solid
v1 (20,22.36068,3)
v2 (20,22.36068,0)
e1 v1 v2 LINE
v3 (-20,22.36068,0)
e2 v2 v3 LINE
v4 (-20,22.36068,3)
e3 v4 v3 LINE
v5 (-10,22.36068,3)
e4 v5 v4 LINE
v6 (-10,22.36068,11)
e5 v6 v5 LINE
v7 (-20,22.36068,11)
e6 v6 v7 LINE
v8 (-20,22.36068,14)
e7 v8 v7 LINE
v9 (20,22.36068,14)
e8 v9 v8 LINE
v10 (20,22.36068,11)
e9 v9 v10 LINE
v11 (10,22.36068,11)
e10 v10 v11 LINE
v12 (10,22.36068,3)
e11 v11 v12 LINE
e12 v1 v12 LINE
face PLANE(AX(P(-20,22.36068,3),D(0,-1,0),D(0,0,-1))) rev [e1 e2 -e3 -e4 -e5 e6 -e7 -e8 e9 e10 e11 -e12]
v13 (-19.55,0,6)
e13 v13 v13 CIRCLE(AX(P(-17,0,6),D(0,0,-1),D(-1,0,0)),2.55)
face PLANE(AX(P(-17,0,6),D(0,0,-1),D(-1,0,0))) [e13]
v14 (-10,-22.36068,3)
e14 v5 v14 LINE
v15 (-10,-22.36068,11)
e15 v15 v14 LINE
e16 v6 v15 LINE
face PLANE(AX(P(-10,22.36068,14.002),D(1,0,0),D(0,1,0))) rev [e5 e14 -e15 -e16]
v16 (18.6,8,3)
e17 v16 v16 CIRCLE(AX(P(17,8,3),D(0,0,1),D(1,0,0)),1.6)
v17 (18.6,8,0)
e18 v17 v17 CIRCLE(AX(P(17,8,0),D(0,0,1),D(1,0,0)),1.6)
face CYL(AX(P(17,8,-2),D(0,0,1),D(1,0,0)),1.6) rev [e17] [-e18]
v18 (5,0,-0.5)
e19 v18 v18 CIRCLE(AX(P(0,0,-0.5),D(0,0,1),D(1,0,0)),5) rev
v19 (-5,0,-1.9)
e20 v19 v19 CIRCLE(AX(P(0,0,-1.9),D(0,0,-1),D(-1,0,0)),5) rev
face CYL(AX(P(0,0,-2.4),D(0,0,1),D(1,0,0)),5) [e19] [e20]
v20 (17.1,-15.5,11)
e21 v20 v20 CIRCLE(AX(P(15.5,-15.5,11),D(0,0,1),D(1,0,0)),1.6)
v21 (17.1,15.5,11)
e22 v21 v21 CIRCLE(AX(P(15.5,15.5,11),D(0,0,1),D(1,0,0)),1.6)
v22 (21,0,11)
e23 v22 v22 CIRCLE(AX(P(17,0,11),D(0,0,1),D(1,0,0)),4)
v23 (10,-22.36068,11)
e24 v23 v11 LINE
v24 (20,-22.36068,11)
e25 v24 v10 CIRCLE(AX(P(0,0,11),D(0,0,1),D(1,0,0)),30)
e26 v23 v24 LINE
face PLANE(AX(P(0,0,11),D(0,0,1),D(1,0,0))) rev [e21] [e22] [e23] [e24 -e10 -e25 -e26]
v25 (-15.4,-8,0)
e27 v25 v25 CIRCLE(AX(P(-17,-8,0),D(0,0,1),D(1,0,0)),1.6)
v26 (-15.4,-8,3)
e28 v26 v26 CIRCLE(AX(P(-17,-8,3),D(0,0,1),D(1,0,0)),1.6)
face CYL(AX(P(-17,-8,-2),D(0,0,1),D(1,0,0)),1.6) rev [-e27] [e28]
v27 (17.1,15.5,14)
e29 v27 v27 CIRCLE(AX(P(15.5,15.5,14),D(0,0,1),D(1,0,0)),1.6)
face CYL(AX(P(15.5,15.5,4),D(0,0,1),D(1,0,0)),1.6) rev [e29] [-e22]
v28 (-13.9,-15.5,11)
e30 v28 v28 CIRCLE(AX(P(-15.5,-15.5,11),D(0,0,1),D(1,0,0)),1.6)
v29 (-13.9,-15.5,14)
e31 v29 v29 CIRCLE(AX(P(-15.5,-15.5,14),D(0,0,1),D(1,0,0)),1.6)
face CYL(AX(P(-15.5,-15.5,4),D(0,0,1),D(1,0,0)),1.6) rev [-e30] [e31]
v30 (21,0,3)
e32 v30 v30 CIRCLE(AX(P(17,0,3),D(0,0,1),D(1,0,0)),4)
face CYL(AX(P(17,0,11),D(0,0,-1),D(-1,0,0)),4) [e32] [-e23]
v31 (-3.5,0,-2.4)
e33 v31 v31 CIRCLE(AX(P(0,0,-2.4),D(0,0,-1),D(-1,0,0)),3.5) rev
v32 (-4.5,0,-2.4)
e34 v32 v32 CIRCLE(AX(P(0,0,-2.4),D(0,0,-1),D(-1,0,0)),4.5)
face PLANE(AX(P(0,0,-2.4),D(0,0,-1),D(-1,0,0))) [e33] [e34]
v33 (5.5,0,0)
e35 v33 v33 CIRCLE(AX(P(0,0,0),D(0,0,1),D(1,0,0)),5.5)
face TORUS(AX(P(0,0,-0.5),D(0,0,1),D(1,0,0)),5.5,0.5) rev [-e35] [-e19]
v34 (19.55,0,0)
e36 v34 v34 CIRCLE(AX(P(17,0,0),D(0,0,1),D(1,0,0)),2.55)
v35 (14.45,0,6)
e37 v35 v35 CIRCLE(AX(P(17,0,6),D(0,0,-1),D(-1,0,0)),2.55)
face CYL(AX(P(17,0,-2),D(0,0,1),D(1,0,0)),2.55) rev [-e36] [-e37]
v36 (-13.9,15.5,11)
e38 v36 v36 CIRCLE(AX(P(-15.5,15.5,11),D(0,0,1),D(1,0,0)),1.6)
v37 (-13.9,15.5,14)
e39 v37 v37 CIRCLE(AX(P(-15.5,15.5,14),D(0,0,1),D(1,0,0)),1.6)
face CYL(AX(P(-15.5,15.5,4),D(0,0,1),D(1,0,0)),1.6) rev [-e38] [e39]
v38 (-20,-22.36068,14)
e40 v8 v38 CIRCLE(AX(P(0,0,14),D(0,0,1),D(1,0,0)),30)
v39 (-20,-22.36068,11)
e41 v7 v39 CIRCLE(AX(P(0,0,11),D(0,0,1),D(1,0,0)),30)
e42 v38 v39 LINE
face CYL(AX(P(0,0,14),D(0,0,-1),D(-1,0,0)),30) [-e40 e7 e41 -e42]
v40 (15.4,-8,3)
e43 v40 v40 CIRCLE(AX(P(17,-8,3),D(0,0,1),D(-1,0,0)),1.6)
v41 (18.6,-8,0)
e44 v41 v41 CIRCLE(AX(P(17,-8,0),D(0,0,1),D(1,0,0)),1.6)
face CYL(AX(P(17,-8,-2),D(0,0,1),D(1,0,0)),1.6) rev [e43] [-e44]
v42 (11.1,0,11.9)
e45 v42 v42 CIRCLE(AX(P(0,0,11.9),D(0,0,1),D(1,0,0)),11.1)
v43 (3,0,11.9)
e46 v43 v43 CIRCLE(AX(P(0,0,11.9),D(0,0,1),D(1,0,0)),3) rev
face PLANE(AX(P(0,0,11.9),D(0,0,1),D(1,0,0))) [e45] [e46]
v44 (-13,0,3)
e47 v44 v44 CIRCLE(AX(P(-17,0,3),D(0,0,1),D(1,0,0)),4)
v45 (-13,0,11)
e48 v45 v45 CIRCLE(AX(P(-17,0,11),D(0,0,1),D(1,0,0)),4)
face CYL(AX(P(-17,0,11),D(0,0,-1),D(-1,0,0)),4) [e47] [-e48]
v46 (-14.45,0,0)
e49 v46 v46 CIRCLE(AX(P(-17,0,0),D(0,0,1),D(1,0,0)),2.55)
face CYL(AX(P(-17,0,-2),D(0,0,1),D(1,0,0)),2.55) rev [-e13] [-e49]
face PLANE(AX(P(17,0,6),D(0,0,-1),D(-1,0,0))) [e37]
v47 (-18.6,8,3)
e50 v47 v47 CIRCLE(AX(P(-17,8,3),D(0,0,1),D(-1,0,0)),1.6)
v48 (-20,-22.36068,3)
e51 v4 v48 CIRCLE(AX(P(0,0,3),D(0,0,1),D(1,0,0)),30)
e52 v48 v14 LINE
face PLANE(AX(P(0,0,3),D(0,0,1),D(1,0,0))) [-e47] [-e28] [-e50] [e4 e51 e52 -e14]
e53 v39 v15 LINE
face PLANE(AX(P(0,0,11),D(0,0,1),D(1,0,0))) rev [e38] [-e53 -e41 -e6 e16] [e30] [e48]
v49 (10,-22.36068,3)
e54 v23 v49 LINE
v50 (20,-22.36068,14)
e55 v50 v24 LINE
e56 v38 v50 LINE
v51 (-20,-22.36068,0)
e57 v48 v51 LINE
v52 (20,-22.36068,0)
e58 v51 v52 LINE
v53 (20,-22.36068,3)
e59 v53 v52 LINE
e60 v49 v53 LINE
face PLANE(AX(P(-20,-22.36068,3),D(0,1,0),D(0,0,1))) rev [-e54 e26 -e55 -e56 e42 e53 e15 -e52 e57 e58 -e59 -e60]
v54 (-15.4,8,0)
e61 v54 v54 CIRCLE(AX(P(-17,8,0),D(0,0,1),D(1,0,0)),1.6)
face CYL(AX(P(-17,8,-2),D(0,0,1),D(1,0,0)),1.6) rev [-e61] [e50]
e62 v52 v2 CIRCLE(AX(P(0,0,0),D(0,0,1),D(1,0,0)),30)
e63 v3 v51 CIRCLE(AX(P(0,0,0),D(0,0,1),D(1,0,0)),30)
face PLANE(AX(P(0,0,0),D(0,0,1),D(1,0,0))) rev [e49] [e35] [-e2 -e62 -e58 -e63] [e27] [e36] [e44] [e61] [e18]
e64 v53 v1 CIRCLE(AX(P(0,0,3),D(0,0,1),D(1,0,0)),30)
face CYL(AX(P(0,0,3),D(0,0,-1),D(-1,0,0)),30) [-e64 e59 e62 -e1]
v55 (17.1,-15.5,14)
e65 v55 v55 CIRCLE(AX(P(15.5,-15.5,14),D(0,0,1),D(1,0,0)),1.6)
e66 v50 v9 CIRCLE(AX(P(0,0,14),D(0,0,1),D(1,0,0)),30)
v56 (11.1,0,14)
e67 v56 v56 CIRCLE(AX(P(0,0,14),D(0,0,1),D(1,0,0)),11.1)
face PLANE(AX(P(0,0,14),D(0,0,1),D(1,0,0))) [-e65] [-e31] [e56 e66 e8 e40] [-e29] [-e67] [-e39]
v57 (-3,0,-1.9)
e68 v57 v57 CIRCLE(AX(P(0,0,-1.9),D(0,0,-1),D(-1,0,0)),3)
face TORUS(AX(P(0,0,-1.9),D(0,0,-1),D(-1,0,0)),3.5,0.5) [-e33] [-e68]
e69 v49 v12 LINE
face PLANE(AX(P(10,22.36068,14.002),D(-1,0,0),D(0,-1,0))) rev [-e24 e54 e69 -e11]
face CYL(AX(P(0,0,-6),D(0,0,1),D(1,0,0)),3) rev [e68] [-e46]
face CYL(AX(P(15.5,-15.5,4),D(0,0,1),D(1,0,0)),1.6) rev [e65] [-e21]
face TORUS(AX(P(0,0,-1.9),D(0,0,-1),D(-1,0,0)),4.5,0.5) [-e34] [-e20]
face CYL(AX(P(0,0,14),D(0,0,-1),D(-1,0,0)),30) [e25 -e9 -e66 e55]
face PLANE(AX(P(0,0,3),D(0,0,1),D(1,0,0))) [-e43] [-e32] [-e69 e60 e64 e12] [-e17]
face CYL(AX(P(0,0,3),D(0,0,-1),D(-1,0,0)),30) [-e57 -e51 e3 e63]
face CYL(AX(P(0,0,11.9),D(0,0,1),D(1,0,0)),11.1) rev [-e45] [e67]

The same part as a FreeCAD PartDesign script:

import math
import FreeCAD as App
import Part
import Sketcher
Q = App.Units.Quantity


def edges_at(feature, points):
    """Names of the edges that pass closest to the given points."""
    edges = feature.Shape.Edges
    near = lambda p: min(range(len(edges)), key=lambda i: edges[i].distToShape(Part.Vertex(*p))[0])
    return sorted({f"Edge{near(p) + 1}" for p in points})

doc = App.newDocument("Part")
params = doc.addObject("Spreadsheet::Sheet", "Params")
for row, (alias, value) in enumerate([
    ("sketch1_radius", "30 mm"),
    ("sketch1_width", "40 mm"),
    ("pad1_length", "3 mm"),
    ("sketch2_diameter", "3.2 mm"),
    ("sketch2_diameter2", "5.1 mm"),
    ("pocket1_length", "5 mm"),
    ("sketch3_diameter", "8 mm"),
    ("sketch3_diameter2", "5.1 mm"),
    ("pad2_length", "8 mm"),
    ("sketch4_radius", "30 mm"),
    ("sketch4_width", "40 mm"),
    ("pad3_length", "3 mm"),
    ("sketch5_width", "20 mm"),
    ("sketch6_diameter", "3.2 mm"),
    ("pocket2_length", "10 mm"),
    ("sketch7_diameter", "6 mm"),
    ("pocket3_length", "20 mm"),
    ("sketch8_diameter", "22.2 mm"),
    ("pocket4_length", "2.1 mm"),
    ("sketch9_diameter", "10 mm"),
    ("sketch9_diameter2", "6 mm"),
    ("pad5_length", "2.4 mm"),
    ("fillet_radius", "0.5 mm"),
    ("sketch10_diameter", "5.1 mm"),
    ("pad6_length", "5 mm"),
], start=1):
    params.set(f"A{row}", alias)
    params.set(f"B{row}", "=" + value)
    params.setAlias(f"B{row}", alias)

body = doc.addObject("PartDesign::Body", "Body")

sketch1 = doc.addObject("Sketcher::SketchObject", "Sketch")
body.addObject(sketch1)
sketch1.AttachmentSupport = (doc.XY_Plane, [""])
sketch1.MapMode = "FlatFace"
sketch1.addGeometry(Part.LineSegment(App.Vector(20, 22.36068, 0), App.Vector(-20, 22.36068, 0)), False)
sketch1.addGeometry(Part.ArcOfCircle(Part.Circle(App.Vector(0, 0, 0), App.Vector(0, 0, 1), 30), math.radians(131.810315), math.radians(228.189685)), False)
sketch1.addGeometry(Part.LineSegment(App.Vector(-20, -22.36068, 0), App.Vector(20, -22.36068, 0)), False)
sketch1.addGeometry(Part.ArcOfCircle(Part.Circle(App.Vector(0, 0, 0), App.Vector(0, 0, 1), 30), math.radians(-48.189685), math.radians(48.189685)), False)
sketch1.addConstraint(Sketcher.Constraint("Coincident", 0, 2, 1, 1))
sketch1.addConstraint(Sketcher.Constraint("Coincident", 1, 2, 2, 1))
sketch1.addConstraint(Sketcher.Constraint("Coincident", 2, 2, 3, 1))
sketch1.addConstraint(Sketcher.Constraint("Coincident", 3, 2, 0, 1))
sketch1.addConstraint(Sketcher.Constraint("Horizontal", 0))
sketch1.addConstraint(Sketcher.Constraint("Horizontal", 2))
sketch1.addConstraint(Sketcher.Constraint("Coincident", 1, 3, -1, 1))
sketch1.addConstraint(Sketcher.Constraint("Coincident", 3, 3, -1, 1))
sketch1.addConstraint(Sketcher.Constraint("Equal", 1, 3))
sketch1.addConstraint(Sketcher.Constraint("Vertical", 0, 2, 1, 2))
sketch1.addConstraint(Sketcher.Constraint("Radius", 1, Q("30 mm")))
sketch1.addConstraint(Sketcher.Constraint("DistanceX", 0, 2, 0, 1, Q("40 mm")))
sketch1.setExpression("Constraints[10]", "Params.sketch1_radius")
sketch1.setExpression("Constraints[11]", "Params.sketch1_width")
pad1 = doc.addObject("PartDesign::Pad", "Pad")
body.addObject(pad1)
pad1.Profile = sketch1
pad1.setExpression("Length", "Params.pad1_length")

sketch2 = doc.addObject("Sketcher::SketchObject", "Sketch001")
body.addObject(sketch2)
sketch2.AttachmentSupport = (doc.XY_Plane, [""])
sketch2.MapMode = "FlatFace"
sketch2.AttachmentOffset = App.Placement(App.Vector(0, 0, 3), App.Rotation())
sketch2.addGeometry(Part.Circle(App.Vector(17, 8, 0), App.Vector(0, 0, 1), 1.6), False)
sketch2.addGeometry(Part.Circle(App.Vector(-17, 0, 0), App.Vector(0, 0, 1), 2.55), False)
sketch2.addGeometry(Part.Circle(App.Vector(17, 0, 0), App.Vector(0, 0, 1), 2.55), False)
sketch2.addGeometry(Part.Circle(App.Vector(17, -8, 0), App.Vector(0, 0, 1), 1.6), False)
sketch2.addGeometry(Part.Circle(App.Vector(-17, -8, 0), App.Vector(0, 0, 1), 1.6), False)
sketch2.addGeometry(Part.Circle(App.Vector(-17, 8, 0), App.Vector(0, 0, 1), 1.6), False)
sketch2.addConstraint(Sketcher.Constraint("Equal", 1, 2))
sketch2.addConstraint(Sketcher.Constraint("Equal", 0, 3))
sketch2.addConstraint(Sketcher.Constraint("Equal", 3, 4))
sketch2.addConstraint(Sketcher.Constraint("Equal", 4, 5))
sketch2.addConstraint(Sketcher.Constraint("Symmetric", 1, 3, 2, 3, -1, 1))
sketch2.addConstraint(Sketcher.Constraint("Symmetric", 0, 3, 4, 3, -1, 1))
sketch2.addConstraint(Sketcher.Constraint("Symmetric", 3, 3, 5, 3, -1, 1))
sketch2.addConstraint(Sketcher.Constraint("Symmetric", 3, 3, 4, 3, -2))
sketch2.addConstraint(Sketcher.Constraint("PointOnObject", 1, 3, -1))
sketch2.addConstraint(Sketcher.Constraint("Vertical", 0, 3, 2, 3))
sketch2.addConstraint(Sketcher.Constraint("Diameter", 0, Q("3.2 mm")))
sketch2.addConstraint(Sketcher.Constraint("Diameter", 1, Q("5.1 mm")))
sketch2.addConstraint(Sketcher.Constraint("DistanceX", -1, 1, 0, 3, Q("17 mm")))
sketch2.addConstraint(Sketcher.Constraint("DistanceY", -1, 1, 0, 3, Q("8 mm")))
sketch2.setExpression("Constraints[10]", "Params.sketch2_diameter")
sketch2.setExpression("Constraints[11]", "Params.sketch2_diameter2")
pocket1 = doc.addObject("PartDesign::Pocket", "Pocket")
body.addObject(pocket1)
pocket1.Profile = sketch2
pocket1.setExpression("Length", "Params.pocket1_length")

sketch3 = doc.addObject("Sketcher::SketchObject", "Sketch002")
body.addObject(sketch3)
sketch3.AttachmentSupport = (doc.XY_Plane, [""])
sketch3.MapMode = "FlatFace"
sketch3.AttachmentOffset = App.Placement(App.Vector(0, 0, 11), App.Rotation())
sketch3.addGeometry(Part.Circle(App.Vector(17, 0, 0), App.Vector(0, 0, 1), 4), False)
sketch3.addGeometry(Part.Circle(App.Vector(17, 0, 0), App.Vector(0, 0, 1), 2.55), False)
sketch3.addGeometry(Part.Circle(App.Vector(-17, 0, 0), App.Vector(0, 0, 1), 4), False)
sketch3.addGeometry(Part.Circle(App.Vector(-17, 0, 0), App.Vector(0, 0, 1), 2.55), False)
sketch3.addConstraint(Sketcher.Constraint("Coincident", 1, 3, 0, 3))
sketch3.addConstraint(Sketcher.Constraint("Coincident", 3, 3, 2, 3))
sketch3.addConstraint(Sketcher.Constraint("Equal", 0, 2))
sketch3.addConstraint(Sketcher.Constraint("Equal", 1, 3))
sketch3.addConstraint(Sketcher.Constraint("Symmetric", 0, 3, 2, 3, -1, 1))
sketch3.addConstraint(Sketcher.Constraint("PointOnObject", 0, 3, -1))
sketch3.addConstraint(Sketcher.Constraint("Diameter", 0, Q("8 mm")))
sketch3.addConstraint(Sketcher.Constraint("Diameter", 1, Q("5.1 mm")))
sketch3.addConstraint(Sketcher.Constraint("DistanceX", -1, 1, 0, 3, Q("17 mm")))
sketch3.setExpression("Constraints[6]", "Params.sketch3_diameter")
sketch3.setExpression("Constraints[7]", "Params.sketch3_diameter2")
pad2 = doc.addObject("PartDesign::Pad", "Pad001")
body.addObject(pad2)
pad2.Profile = sketch3
pad2.setExpression("Length", "Params.pad2_length")
pad2.Reversed = True

sketch4 = doc.addObject("Sketcher::SketchObject", "Sketch003")
body.addObject(sketch4)
sketch4.AttachmentSupport = (doc.XY_Plane, [""])
sketch4.MapMode = "FlatFace"
sketch4.AttachmentOffset = App.Placement(App.Vector(0, 0, 11), App.Rotation())
sketch4.addGeometry(Part.LineSegment(App.Vector(-20, -22.36068, 0), App.Vector(20, -22.36068, 0)), False)
sketch4.addGeometry(Part.ArcOfCircle(Part.Circle(App.Vector(0, 0, 0), App.Vector(0, 0, 1), 30), math.radians(-48.189685), math.radians(48.189685)), False)
sketch4.addGeometry(Part.LineSegment(App.Vector(20, 22.36068, 0), App.Vector(-20, 22.36068, 0)), False)
sketch4.addGeometry(Part.ArcOfCircle(Part.Circle(App.Vector(0, 0, 0), App.Vector(0, 0, 1), 30), math.radians(131.810315), math.radians(228.189685)), False)
sketch4.addConstraint(Sketcher.Constraint("Coincident", 0, 2, 1, 1))
sketch4.addConstraint(Sketcher.Constraint("Coincident", 1, 2, 2, 1))
sketch4.addConstraint(Sketcher.Constraint("Coincident", 2, 2, 3, 1))
sketch4.addConstraint(Sketcher.Constraint("Coincident", 3, 2, 0, 1))
sketch4.addConstraint(Sketcher.Constraint("Horizontal", 0))
sketch4.addConstraint(Sketcher.Constraint("Horizontal", 2))
sketch4.addConstraint(Sketcher.Constraint("Coincident", 1, 3, -1, 1))
sketch4.addConstraint(Sketcher.Constraint("Coincident", 3, 3, -1, 1))
sketch4.addConstraint(Sketcher.Constraint("Equal", 1, 3))
sketch4.addConstraint(Sketcher.Constraint("Vertical", 0, 2, 1, 2))
sketch4.addConstraint(Sketcher.Constraint("Radius", 1, Q("30 mm")))
sketch4.addConstraint(Sketcher.Constraint("DistanceX", 0, 1, 0, 2, Q("40 mm")))
sketch4.setExpression("Constraints[10]", "Params.sketch4_radius")
sketch4.setExpression("Constraints[11]", "Params.sketch4_width")
pad3 = doc.addObject("PartDesign::Pad", "Pad002")
body.addObject(pad3)
pad3.Profile = sketch4
pad3.setExpression("Length", "Params.pad3_length")

sketch5 = doc.addObject("Sketcher::SketchObject", "Sketch004")
body.addObject(sketch5)
sketch5.AttachmentSupport = (doc.XY_Plane, [""])
sketch5.MapMode = "FlatFace"
sketch5.AttachmentOffset = App.Placement(App.Vector(0, 0, 3), App.Rotation())
sketch5.addGeometry(Part.LineSegment(App.Vector(-10, 22.36068, 0), App.Vector(-10, -22.36068, 0)), False)
sketch5.addGeometry(Part.LineSegment(App.Vector(-10, -22.36068, 0), App.Vector(10, -22.36068, 0)), False)
sketch5.addGeometry(Part.LineSegment(App.Vector(10, -22.36068, 0), App.Vector(10, 22.36068, 0)), False)
sketch5.addGeometry(Part.LineSegment(App.Vector(10, 22.36068, 0), App.Vector(-10, 22.36068, 0)), False)
sketch5.addConstraint(Sketcher.Constraint("Coincident", 0, 2, 1, 1))
sketch5.addConstraint(Sketcher.Constraint("Coincident", 1, 2, 2, 1))
sketch5.addConstraint(Sketcher.Constraint("Coincident", 2, 2, 3, 1))
sketch5.addConstraint(Sketcher.Constraint("Coincident", 3, 2, 0, 1))
sketch5.addConstraint(Sketcher.Constraint("Vertical", 0))
sketch5.addConstraint(Sketcher.Constraint("Horizontal", 1))
sketch5.addConstraint(Sketcher.Constraint("Vertical", 2))
sketch5.addConstraint(Sketcher.Constraint("Horizontal", 3))
sketch5.addConstraint(Sketcher.Constraint("Symmetric", 0, 2, 2, 2, -1, 1))
sketch5.addConstraint(Sketcher.Constraint("DistanceX", 1, 1, 1, 2, Q("20 mm")))
sketch5.addConstraint(Sketcher.Constraint("DistanceY", 0, 2, 0, 1, Q("44.72136 mm")))
sketch5.setExpression("Constraints[9]", "Params.sketch5_width")
pad4 = doc.addObject("PartDesign::Pad", "Pad003")
body.addObject(pad4)
pad4.Profile = sketch5
pad4.Type = "UpToFirst"

sketch6 = doc.addObject("Sketcher::SketchObject", "Sketch005")
body.addObject(sketch6)
sketch6.AttachmentSupport = (doc.XY_Plane, [""])
sketch6.MapMode = "FlatFace"
sketch6.AttachmentOffset = App.Placement(App.Vector(0, 0, 14), App.Rotation())
sketch6.addGeometry(Part.Circle(App.Vector(15.5, 15.5, 0), App.Vector(0, 0, 1), 1.6), False)
sketch6.addGeometry(Part.Circle(App.Vector(15.5, -15.5, 0), App.Vector(0, 0, 1), 1.6), False)
sketch6.addGeometry(Part.Circle(App.Vector(-15.5, -15.5, 0), App.Vector(0, 0, 1), 1.6), False)
sketch6.addGeometry(Part.Circle(App.Vector(-15.5, 15.5, 0), App.Vector(0, 0, 1), 1.6), False)
sketch6.addConstraint(Sketcher.Constraint("Equal", 0, 1))
sketch6.addConstraint(Sketcher.Constraint("Equal", 1, 2))
sketch6.addConstraint(Sketcher.Constraint("Equal", 2, 3))
sketch6.addConstraint(Sketcher.Constraint("Symmetric", 0, 3, 2, 3, -1, 1))
sketch6.addConstraint(Sketcher.Constraint("Symmetric", 1, 3, 3, 3, -1, 1))
sketch6.addConstraint(Sketcher.Constraint("Symmetric", 1, 3, 2, 3, -2))
sketch6.addConstraint(Sketcher.Constraint("Diameter", 0, Q("3.2 mm")))
sketch6.addConstraint(Sketcher.Constraint("DistanceY", 1, 3, 0, 3, Q("31 mm")))
sketch6.addConstraint(Sketcher.Constraint("DistanceX", 2, 3, 1, 3, Q("31 mm")))
sketch6.setExpression("Constraints[6]", "Params.sketch6_diameter")
pocket2 = doc.addObject("PartDesign::Pocket", "Pocket001")
body.addObject(pocket2)
pocket2.Profile = sketch6
pocket2.setExpression("Length", "Params.pocket2_length")

sketch7 = doc.addObject("Sketcher::SketchObject", "Sketch006")
body.addObject(sketch7)
sketch7.AttachmentSupport = (doc.XY_Plane, [""])
sketch7.MapMode = "FlatFace"
sketch7.AttachmentOffset = App.Placement(App.Vector(0, 0, 14), App.Rotation())
sketch7.addGeometry(Part.Circle(App.Vector(0, 0, 0), App.Vector(0, 0, 1), 3), False)
sketch7.addConstraint(Sketcher.Constraint("Coincident", 0, 3, -1, 1))
sketch7.addConstraint(Sketcher.Constraint("Diameter", 0, Q("6 mm")))
sketch7.setExpression("Constraints[1]", "Params.sketch7_diameter")
pocket3 = doc.addObject("PartDesign::Pocket", "Pocket002")
body.addObject(pocket3)
pocket3.Profile = sketch7
pocket3.setExpression("Length", "Params.pocket3_length")

sketch8 = doc.addObject("Sketcher::SketchObject", "Sketch007")
body.addObject(sketch8)
sketch8.AttachmentSupport = (doc.XY_Plane, [""])
sketch8.MapMode = "FlatFace"
sketch8.AttachmentOffset = App.Placement(App.Vector(0, 0, 14), App.Rotation())
sketch8.addGeometry(Part.Circle(App.Vector(0, 0, 0), App.Vector(0, 0, 1), 11.1), False)
sketch8.addConstraint(Sketcher.Constraint("Coincident", 0, 3, -1, 1))
sketch8.addConstraint(Sketcher.Constraint("Diameter", 0, Q("22.2 mm")))
sketch8.setExpression("Constraints[1]", "Params.sketch8_diameter")
pocket4 = doc.addObject("PartDesign::Pocket", "Pocket003")
body.addObject(pocket4)
pocket4.Profile = sketch8
pocket4.setExpression("Length", "Params.pocket4_length")

sketch9 = doc.addObject("Sketcher::SketchObject", "Sketch008")
body.addObject(sketch9)
sketch9.AttachmentSupport = (doc.XY_Plane, [""])
sketch9.MapMode = "FlatFace"
sketch9.addGeometry(Part.Circle(App.Vector(0, 0, 0), App.Vector(0, 0, 1), 5), False)
sketch9.addGeometry(Part.Circle(App.Vector(0, 0, 0), App.Vector(0, 0, 1), 3), False)
sketch9.addConstraint(Sketcher.Constraint("Coincident", 0, 3, -1, 1))
sketch9.addConstraint(Sketcher.Constraint("Coincident", 1, 3, -1, 1))
sketch9.addConstraint(Sketcher.Constraint("Diameter", 0, Q("10 mm")))
sketch9.addConstraint(Sketcher.Constraint("Diameter", 1, Q("6 mm")))
sketch9.setExpression("Constraints[2]", "Params.sketch9_diameter")
sketch9.setExpression("Constraints[3]", "Params.sketch9_diameter2")
pad5 = doc.addObject("PartDesign::Pad", "Pad004")
body.addObject(pad5)
pad5.Profile = sketch9
pad5.setExpression("Length", "Params.pad5_length")
pad5.Reversed = True
doc.recompute()

fillet = doc.addObject("PartDesign::Fillet", "Fillet")
body.addObject(fillet)
fillet.Base = (pad5, edges_at(pad5, [(-5, 0, 0), (-3, 0, -2.4), (-5, 0, -2.4)]))
fillet.setExpression("Radius", "Params.fillet_radius")

sketch10 = doc.addObject("Sketcher::SketchObject", "Sketch009")
body.addObject(sketch10)
sketch10.AttachmentSupport = (doc.XY_Plane, [""])
sketch10.MapMode = "FlatFace"
sketch10.AttachmentOffset = App.Placement(App.Vector(0, 0, 11), App.Rotation())
sketch10.addGeometry(Part.Circle(App.Vector(17, 0, 0), App.Vector(0, 0, 1), 2.55), False)
sketch10.addGeometry(Part.Circle(App.Vector(-17, 0, 0), App.Vector(0, 0, 1), 2.55), False)
sketch10.addConstraint(Sketcher.Constraint("Equal", 0, 1))
sketch10.addConstraint(Sketcher.Constraint("Symmetric", 0, 3, 1, 3, -1, 1))
sketch10.addConstraint(Sketcher.Constraint("PointOnObject", 0, 3, -1))
sketch10.addConstraint(Sketcher.Constraint("Diameter", 0, Q("5.1 mm")))
sketch10.addConstraint(Sketcher.Constraint("DistanceX", -1, 1, 0, 3, Q("17 mm")))
sketch10.setExpression("Constraints[3]", "Params.sketch10_diameter")
pad6 = doc.addObject("PartDesign::Pad", "Pad005")
body.addObject(pad6)
pad6.Profile = sketch10
pad6.setExpression("Length", "Params.pad6_length")
pad6.Reversed = True

doc.recompute()
